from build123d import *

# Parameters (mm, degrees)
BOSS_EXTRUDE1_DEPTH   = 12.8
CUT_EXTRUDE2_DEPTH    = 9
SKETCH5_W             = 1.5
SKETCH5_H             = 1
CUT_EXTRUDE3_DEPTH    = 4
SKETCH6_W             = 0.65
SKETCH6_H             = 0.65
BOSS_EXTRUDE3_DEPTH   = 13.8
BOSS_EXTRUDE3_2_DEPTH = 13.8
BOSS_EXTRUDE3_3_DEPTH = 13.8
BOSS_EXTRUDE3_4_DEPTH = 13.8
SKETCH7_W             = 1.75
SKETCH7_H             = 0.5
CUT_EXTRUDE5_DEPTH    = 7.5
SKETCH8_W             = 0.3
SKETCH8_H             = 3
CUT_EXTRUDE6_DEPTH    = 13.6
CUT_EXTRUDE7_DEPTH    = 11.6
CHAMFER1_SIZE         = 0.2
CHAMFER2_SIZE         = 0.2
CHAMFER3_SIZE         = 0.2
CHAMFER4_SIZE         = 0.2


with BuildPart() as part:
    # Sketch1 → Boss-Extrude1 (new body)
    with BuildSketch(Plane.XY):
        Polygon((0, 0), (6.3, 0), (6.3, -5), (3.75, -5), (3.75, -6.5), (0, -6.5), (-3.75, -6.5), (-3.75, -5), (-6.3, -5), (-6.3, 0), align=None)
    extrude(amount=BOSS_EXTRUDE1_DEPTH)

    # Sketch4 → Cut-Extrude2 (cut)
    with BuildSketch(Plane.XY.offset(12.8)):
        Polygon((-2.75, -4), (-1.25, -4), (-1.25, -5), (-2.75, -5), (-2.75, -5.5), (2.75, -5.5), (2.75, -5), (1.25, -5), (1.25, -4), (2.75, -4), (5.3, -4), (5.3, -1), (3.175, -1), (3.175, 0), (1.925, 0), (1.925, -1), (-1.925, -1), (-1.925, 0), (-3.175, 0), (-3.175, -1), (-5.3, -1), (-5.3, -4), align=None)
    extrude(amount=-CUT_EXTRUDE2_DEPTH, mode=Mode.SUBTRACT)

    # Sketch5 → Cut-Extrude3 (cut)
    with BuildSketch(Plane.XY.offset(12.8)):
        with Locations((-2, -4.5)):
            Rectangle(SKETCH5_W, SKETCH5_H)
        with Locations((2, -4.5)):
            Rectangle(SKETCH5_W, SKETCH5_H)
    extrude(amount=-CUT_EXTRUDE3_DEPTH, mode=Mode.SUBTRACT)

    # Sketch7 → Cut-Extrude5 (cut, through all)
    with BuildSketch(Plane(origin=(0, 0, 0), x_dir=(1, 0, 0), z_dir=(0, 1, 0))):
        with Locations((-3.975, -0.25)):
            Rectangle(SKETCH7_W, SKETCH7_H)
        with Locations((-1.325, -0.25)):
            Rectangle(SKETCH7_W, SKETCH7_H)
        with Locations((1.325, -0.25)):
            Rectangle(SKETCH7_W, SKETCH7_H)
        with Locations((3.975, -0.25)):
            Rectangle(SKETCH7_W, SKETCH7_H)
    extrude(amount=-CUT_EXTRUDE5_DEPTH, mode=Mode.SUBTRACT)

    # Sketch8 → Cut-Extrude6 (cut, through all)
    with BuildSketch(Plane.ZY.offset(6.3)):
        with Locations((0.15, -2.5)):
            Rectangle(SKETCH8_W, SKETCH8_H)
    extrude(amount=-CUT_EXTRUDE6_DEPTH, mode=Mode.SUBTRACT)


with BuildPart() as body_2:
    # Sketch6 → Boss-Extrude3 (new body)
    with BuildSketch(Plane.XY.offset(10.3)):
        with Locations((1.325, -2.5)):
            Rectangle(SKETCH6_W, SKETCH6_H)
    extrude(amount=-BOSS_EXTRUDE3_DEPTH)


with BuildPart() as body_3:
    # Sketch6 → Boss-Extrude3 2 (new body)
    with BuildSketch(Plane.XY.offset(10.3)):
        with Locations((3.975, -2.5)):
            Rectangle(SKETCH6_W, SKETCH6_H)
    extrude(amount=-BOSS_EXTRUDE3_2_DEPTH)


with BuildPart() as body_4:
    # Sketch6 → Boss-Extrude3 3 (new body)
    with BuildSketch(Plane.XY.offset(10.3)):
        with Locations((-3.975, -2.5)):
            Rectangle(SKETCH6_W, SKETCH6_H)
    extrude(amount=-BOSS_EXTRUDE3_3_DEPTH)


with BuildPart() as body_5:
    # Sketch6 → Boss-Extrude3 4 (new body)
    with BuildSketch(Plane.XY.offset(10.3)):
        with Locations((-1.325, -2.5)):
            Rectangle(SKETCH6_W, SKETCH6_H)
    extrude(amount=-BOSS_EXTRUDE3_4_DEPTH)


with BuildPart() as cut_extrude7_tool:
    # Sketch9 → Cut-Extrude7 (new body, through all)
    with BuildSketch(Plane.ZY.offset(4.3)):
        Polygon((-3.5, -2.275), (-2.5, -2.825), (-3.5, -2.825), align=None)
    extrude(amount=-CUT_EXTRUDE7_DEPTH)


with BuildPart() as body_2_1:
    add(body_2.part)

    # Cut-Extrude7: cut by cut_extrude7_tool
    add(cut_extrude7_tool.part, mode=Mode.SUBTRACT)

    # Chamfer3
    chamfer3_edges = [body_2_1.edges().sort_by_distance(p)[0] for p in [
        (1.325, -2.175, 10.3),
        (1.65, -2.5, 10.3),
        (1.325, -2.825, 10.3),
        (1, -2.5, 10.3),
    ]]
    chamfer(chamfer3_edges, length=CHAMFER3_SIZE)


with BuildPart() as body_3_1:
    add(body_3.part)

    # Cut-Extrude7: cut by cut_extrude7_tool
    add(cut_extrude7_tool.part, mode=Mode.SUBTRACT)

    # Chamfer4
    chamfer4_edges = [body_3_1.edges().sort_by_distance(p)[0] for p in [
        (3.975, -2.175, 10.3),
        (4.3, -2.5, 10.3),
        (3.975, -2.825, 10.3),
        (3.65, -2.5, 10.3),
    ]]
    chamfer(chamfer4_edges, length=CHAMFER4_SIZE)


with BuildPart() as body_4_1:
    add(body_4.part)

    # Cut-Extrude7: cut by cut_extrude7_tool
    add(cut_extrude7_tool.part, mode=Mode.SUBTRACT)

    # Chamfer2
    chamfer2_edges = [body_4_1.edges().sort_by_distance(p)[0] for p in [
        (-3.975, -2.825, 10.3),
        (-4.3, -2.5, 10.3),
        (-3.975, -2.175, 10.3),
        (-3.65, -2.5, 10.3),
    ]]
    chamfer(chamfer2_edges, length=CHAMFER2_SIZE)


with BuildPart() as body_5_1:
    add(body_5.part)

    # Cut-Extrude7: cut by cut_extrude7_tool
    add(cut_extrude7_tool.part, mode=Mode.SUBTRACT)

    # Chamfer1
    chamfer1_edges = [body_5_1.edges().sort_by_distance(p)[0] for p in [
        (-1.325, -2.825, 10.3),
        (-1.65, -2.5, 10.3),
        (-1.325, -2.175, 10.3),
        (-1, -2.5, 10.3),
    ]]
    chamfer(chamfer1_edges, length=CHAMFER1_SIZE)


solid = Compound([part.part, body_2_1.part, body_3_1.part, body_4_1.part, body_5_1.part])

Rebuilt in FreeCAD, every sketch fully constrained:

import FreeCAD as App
import Part
import Sketcher
Q = App.Units.Quantity


def edges_at(feature, points):
    """Names of the edges that pass closest to the given points."""
    edges = feature.Shape.Edges
    near = lambda p: min(range(len(edges)), key=lambda i: edges[i].distToShape(Part.Vertex(*p))[0])
    return sorted({f"Edge{near(p) + 1}" for p in points})


def add_polygon(sketch, points):
    """Adds a closed chain of lines whose ends are joined by coincident constraints."""
    first, n = sketch.GeometryCount, len(points)
    for a, b in zip(points, points[1:] + points[:1]):
        sketch.addGeometry(Part.LineSegment(App.Vector(*a, 0), App.Vector(*b, 0)), False)
    for i in range(n):
        sketch.addConstraint(Sketcher.Constraint("Coincident", first + i, 2, first + (i + 1) % n, 1))

doc = App.newDocument("Part")
params = doc.addObject("Spreadsheet::Sheet", "Params")
for row, (alias, value) in enumerate([
    ("sketch1_height", "5 mm"),
    ("sketch1_width", "12.6 mm"),
    ("sketch1_width2", "7.5 mm"),
    ("sketch1_height2", "1.5 mm"),
    ("pad1_length", "12.8 mm"),
    ("sketch2_height", "1 mm"),
    ("sketch2_height2", "3 mm"),
    ("sketch2_width", "1.5 mm"),
    ("sketch2_width2", "5.5 mm"),
    ("sketch2_height3", "0.5 mm"),
    ("pocket1_length", "9 mm"),
    ("sketch3_height", "1 mm"),
    ("sketch3_width", "1.5 mm"),
    ("pocket2_length", "4 mm"),
    ("sketch4_height", "0.5 mm"),
    ("sketch4_width", "1.75 mm"),
    ("sketch5_width", "3 mm"),
    ("sketch5_height", "0.3 mm"),
    ("sketch6_width", "0.65 mm"),
    ("pad2_length", "13.8 mm"),
    ("sketch7_width", "0.65 mm"),
    ("pad3_length", "13.8 mm"),
    ("sketch8_width", "0.65 mm"),
    ("pad4_length", "13.8 mm"),
    ("sketch9_width", "0.65 mm"),
    ("pad5_length", "13.8 mm"),
    ("sketch10_height", "1 mm"),
    ("sketch10_width", "0.55 mm"),
    ("pad6_length", "11.6 mm"),
    ("chamfer_size", "0.2 mm"),
    ("chamfer2_size", "0.2 mm"),
    ("chamfer3_size", "0.2 mm"),
    ("chamfer4_size", "0.2 mm"),
], start=1):
    params.set(f"A{row}", alias)
    params.set(f"B{row}", "=" + value)
    params.setAlias(f"B{row}", alias)

body = doc.addObject("PartDesign::Body", "Body")

# Sketch on XY plane
sketch1 = body.newObject("Sketcher::SketchObject", "Sketch")
sketch1.AttachmentSupport = (doc.getObject("XY_Plane"), [""])
sketch1.MapMode = "FlatFace"
add_polygon(sketch1, [(6.3, 0), (-6.3, 0), (-6.3, -5), (-3.8, -5), (-3.8, -6.5), (3.8, -6.5), (3.8, -5), (6.3, -5)])  # lines 0-7
sketch1.addConstraint(Sketcher.Constraint("Horizontal", 0))
sketch1.addConstraint(Sketcher.Constraint("Vertical", 1))
sketch1.addConstraint(Sketcher.Constraint("Horizontal", 2))
sketch1.addConstraint(Sketcher.Constraint("Vertical", 3))
sketch1.addConstraint(Sketcher.Constraint("Horizontal", 4))
sketch1.addConstraint(Sketcher.Constraint("Vertical", 5))
sketch1.addConstraint(Sketcher.Constraint("Horizontal", 6))
sketch1.addConstraint(Sketcher.Constraint("Vertical", 7))
sketch1.addConstraint(Sketcher.Constraint("Symmetric", 0, 2, 7, 2, -1, 1))
sketch1.addConstraint(Sketcher.Constraint("Symmetric", 2, 2, 5, 2, -2))
sketch1.addConstraint(Sketcher.Constraint("DistanceY", 1, 2, 1, 1, Q("5 mm")))
sketch1.addConstraint(Sketcher.Constraint("DistanceX", 0, 2, 0, 1, Q("12.6 mm")))
sketch1.addConstraint(Sketcher.Constraint("DistanceX", 4, 1, 4, 2, Q("7.5 mm")))
sketch1.addConstraint(Sketcher.Constraint("DistanceY", 3, 2, 3, 1, Q("1.5 mm")))
sketch1.setExpression("Constraints[18]", "Params.sketch1_height")
sketch1.setExpression("Constraints[19]", "Params.sketch1_width")
sketch1.setExpression("Constraints[20]", "Params.sketch1_width2")
sketch1.setExpression("Constraints[21]", "Params.sketch1_height2")
pad1 = body.newObject("PartDesign::Pad", "Pad")
pad1.Profile = sketch1
pad1.setExpression("Length", "Params.pad1_length")

# Sketch on XY plane
sketch2 = body.newObject("Sketcher::SketchObject", "Sketch001")
sketch2.AttachmentSupport = (doc.getObject("XY_Plane"), [""])
sketch2.MapMode = "FlatFace"
sketch2.AttachmentOffset = App.Placement(App.Vector(0, 0, 12.8), App.Rotation())
add_polygon(sketch2, [(-1.2, -4), (-1.2, -5), (-2.8, -5), (-2.8, -5.5), (2.8, -5.5), (2.8, -5), (1.2, -5), (1.2, -4), (5.3, -4), (5.3, -1), (3.2, -1), (3.2, 0), (1.9, 0), (1.9, -1), (-1.9, -1), (-1.9, 0), (-3.2, 0), (-3.2, -1), (-5.3, -1), (-5.3, -4)])  # lines 0-19
sketch2.addConstraint(Sketcher.Constraint("Vertical", 0))
sketch2.addConstraint(Sketcher.Constraint("Horizontal", 1))
sketch2.addConstraint(Sketcher.Constraint("Vertical", 2))
sketch2.addConstraint(Sketcher.Constraint("Horizontal", 3))
sketch2.addConstraint(Sketcher.Constraint("Vertical", 4))
sketch2.addConstraint(Sketcher.Constraint("Horizontal", 5))
sketch2.addConstraint(Sketcher.Constraint("Vertical", 6))
sketch2.addConstraint(Sketcher.Constraint("Horizontal", 7))
sketch2.addConstraint(Sketcher.Constraint("Vertical", 8))
sketch2.addConstraint(Sketcher.Constraint("Horizontal", 9))
sketch2.addConstraint(Sketcher.Constraint("Vertical", 10))
sketch2.addConstraint(Sketcher.Constraint("Horizontal", 11))
sketch2.addConstraint(Sketcher.Constraint("Vertical", 12))
sketch2.addConstraint(Sketcher.Constraint("Horizontal", 13))
sketch2.addConstraint(Sketcher.Constraint("Vertical", 14))
sketch2.addConstraint(Sketcher.Constraint("Horizontal", 15))
sketch2.addConstraint(Sketcher.Constraint("Vertical", 16))
sketch2.addConstraint(Sketcher.Constraint("Horizontal", 17))
sketch2.addConstraint(Sketcher.Constraint("Vertical", 18))
sketch2.addConstraint(Sketcher.Constraint("Horizontal", 19))
sketch2.addConstraint(Sketcher.Constraint("Symmetric", 11, 2, 14, 2, -1, 1))
sketch2.addConstraint(Sketcher.Constraint("Symmetric", 1, 2, 4, 2, -2))
sketch2.addConstraint(Sketcher.Constraint("Symmetric", 10, 2, 15, 2, -2))
sketch2.addConstraint(Sketcher.Constraint("Symmetric", 8, 2, 17, 2, -2))
sketch2.addConstraint(Sketcher.Constraint("Symmetric", 6, 2, 19, 2, -2))
sketch2.addConstraint(Sketcher.Constraint("Horizontal", 9, 2, 12, 2))
sketch2.addConstraint(Sketcher.Constraint("Equal", 6, 10))
sketch2.addConstraint(Sketcher.Constraint("DistanceY", 0, 2, 0, 1, Q("1 mm")))
sketch2.addConstraint(Sketcher.Constraint("DistanceY", 8, 1, 8, 2, Q("3 mm")))
sketch2.addConstraint(Sketcher.Constraint("DistanceX", 1, 2, 1, 1, Q("1.5 mm")))
sketch2.addConstraint(Sketcher.Constraint("DistanceX", 3, 1, 3, 2, Q("5.5 mm")))
sketch2.addConstraint(Sketcher.Constraint("DistanceY", 2, 2, 2, 1, Q("0.5 mm")))
sketch2.addConstraint(Sketcher.Constraint("DistanceX", 7, 1, 7, 2, Q("4.05 mm")))
sketch2.addConstraint(Sketcher.Constraint("DistanceX", 11, 2, 11, 1, Q("1.25 mm")))
sketch2.addConstraint(Sketcher.Constraint("DistanceX", 13, 2, 13, 1, Q("3.85 mm")))
sketch2.setExpression("Constraints[47]", "Params.sketch2_height")
sketch2.setExpression("Constraints[48]", "Params.sketch2_height2")
sketch2.setExpression("Constraints[49]", "Params.sketch2_width")
sketch2.setExpression("Constraints[50]", "Params.sketch2_width2")
sketch2.setExpression("Constraints[51]", "Params.sketch2_height3")
pocket1 = body.newObject("PartDesign::Pocket", "Pocket")
pocket1.Profile = sketch2
pocket1.setExpression("Length", "Params.pocket1_length")

# Sketch on XY plane
sketch3 = body.newObject("Sketcher::SketchObject", "Sketch002")
sketch3.AttachmentSupport = (doc.getObject("XY_Plane"), [""])
sketch3.MapMode = "FlatFace"
sketch3.AttachmentOffset = App.Placement(App.Vector(0, 0, 12.8), App.Rotation())
add_polygon(sketch3, [(-2.8, -4), (-2.8, -5), (-1.2, -5), (-1.2, -4)])  # lines 0-3
add_polygon(sketch3, [(1.2, -4), (1.2, -5), (2.8, -5), (2.8, -4)])  # lines 4-7
sketch3.addConstraint(Sketcher.Constraint("Vertical", 0))
sketch3.addConstraint(Sketcher.Constraint("Horizontal", 1))
sketch3.addConstraint(Sketcher.Constraint("Vertical", 2))
sketch3.addConstraint(Sketcher.Constraint("Horizontal", 3))
sketch3.addConstraint(Sketcher.Constraint("Vertical", 4))
sketch3.addConstraint(Sketcher.Constraint("Horizontal", 5))
sketch3.addConstraint(Sketcher.Constraint("Vertical", 6))
sketch3.addConstraint(Sketcher.Constraint("Horizontal", 7))
sketch3.addConstraint(Sketcher.Constraint("Symmetric", 1, 2, 4, 2, -2))
sketch3.addConstraint(Sketcher.Constraint("Symmetric", 3, 2, 6, 2, -2))
sketch3.addConstraint(Sketcher.Constraint("DistanceY", 0, 2, 0, 1, Q("1 mm")))
sketch3.addConstraint(Sketcher.Constraint("DistanceX", 1, 1, 1, 2, Q("1.5 mm")))
sketch3.addConstraint(Sketcher.Constraint("DistanceY", 0, 2, -1, 1, Q("5 mm")))
sketch3.addConstraint(Sketcher.Constraint("DistanceX", 0, 2, 4, 2, Q("4 mm")))
sketch3.setExpression("Constraints[18]", "Params.sketch3_height")
sketch3.setExpression("Constraints[19]", "Params.sketch3_width")
pocket2 = body.newObject("PartDesign::Pocket", "Pocket001")
pocket2.Profile = sketch3
pocket2.setExpression("Length", "Params.pocket2_length")

# Sketch on XZ plane
sketch4 = body.newObject("Sketcher::SketchObject", "Sketch003")
sketch4.AttachmentSupport = (doc.getObject("XZ_Plane"), [""])
sketch4.MapMode = "FlatFace"
add_polygon(sketch4, [(-4.8, 0), (-4.8, 0.5), (-3.1, 0.5), (-3.1, 0)])  # lines 0-3
add_polygon(sketch4, [(-2.2, 0), (-2.2, 0.5), (-0.5, 0.5), (-0.5, 0)])  # lines 4-7
add_polygon(sketch4, [(0.5, 0), (0.5, 0.5), (2.2, 0.5), (2.2, 0)])  # lines 8-11
add_polygon(sketch4, [(3.1, 0), (3.1, 0.5), (4.8, 0.5), (4.8, 0)])  # lines 12-15
sketch4.addConstraint(Sketcher.Constraint("Vertical", 0))
sketch4.addConstraint(Sketcher.Constraint("Horizontal", 1))
sketch4.addConstraint(Sketcher.Constraint("Vertical", 2))
sketch4.addConstraint(Sketcher.Constraint("Horizontal", 3))
sketch4.addConstraint(Sketcher.Constraint("Vertical", 4))
sketch4.addConstraint(Sketcher.Constraint("Horizontal", 5))
sketch4.addConstraint(Sketcher.Constraint("Vertical", 6))
sketch4.addConstraint(Sketcher.Constraint("Horizontal", 7))
sketch4.addConstraint(Sketcher.Constraint("Vertical", 8))
sketch4.addConstraint(Sketcher.Constraint("Horizontal", 9))
sketch4.addConstraint(Sketcher.Constraint("Vertical", 10))
sketch4.addConstraint(Sketcher.Constraint("Horizontal", 11))
sketch4.addConstraint(Sketcher.Constraint("Vertical", 12))
sketch4.addConstraint(Sketcher.Constraint("Horizontal", 13))
sketch4.addConstraint(Sketcher.Constraint("Vertical", 14))
sketch4.addConstraint(Sketcher.Constraint("Horizontal", 15))
sketch4.addConstraint(Sketcher.Constraint("Symmetric", 7, 2, 10, 2, -1, 1))
sketch4.addConstraint(Sketcher.Constraint("Symmetric", 3, 2, 14, 2, -1, 1))
sketch4.addConstraint(Sketcher.Constraint("Symmetric", 5, 2, 8, 2, -2))
sketch4.addConstraint(Sketcher.Constraint("Symmetric", 1, 2, 12, 2, -2))
sketch4.addConstraint(Sketcher.Constraint("PointOnObject", 2, 2, -1))
sketch4.addConstraint(Sketcher.Constraint("PointOnObject", 6, 2, -1))
sketch4.addConstraint(Sketcher.Constraint("Horizontal", 1, 2, 4, 2))
sketch4.addConstraint(Sketcher.Constraint("Equal", 3, 5))
sketch4.addConstraint(Sketcher.Constraint("DistanceY", 0, 1, 0, 2, Q("0.5 mm")))
sketch4.addConstraint(Sketcher.Constraint("DistanceX", 1, 1, 1, 2, Q("1.75 mm")))
sketch4.addConstraint(Sketcher.Constraint("DistanceX", 1, 2, -1, 1, Q("3.1 mm")))
sketch4.addConstraint(Sketcher.Constraint("DistanceX", 4, 2, -1, 1, Q("2.2 mm")))
sketch4.setExpression("Constraints[40]", "Params.sketch4_height")
sketch4.setExpression("Constraints[41]", "Params.sketch4_width")
pocket3 = body.newObject("PartDesign::Pocket", "Pocket002")
pocket3.Profile = sketch4
pocket3.Type = "ThroughAll"
pocket3.Reversed = True

# Sketch on YZ plane
sketch5 = body.newObject("Sketcher::SketchObject", "Sketch004")
sketch5.AttachmentSupport = (doc.getObject("YZ_Plane"), [""])
sketch5.MapMode = "FlatFace"
sketch5.AttachmentOffset = App.Placement(App.Vector(0, 0, -6.3), App.Rotation())
add_polygon(sketch5, [(-1, 0), (-4, 0), (-4, 0.3), (-1, 0.3)])  # lines 0-3
sketch5.addConstraint(Sketcher.Constraint("Horizontal", 0))
sketch5.addConstraint(Sketcher.Constraint("Vertical", 1))
sketch5.addConstraint(Sketcher.Constraint("Horizontal", 2))
sketch5.addConstraint(Sketcher.Constraint("Vertical", 3))
sketch5.addConstraint(Sketcher.Constraint("PointOnObject", 0, 2, -1))
sketch5.addConstraint(Sketcher.Constraint("DistanceX", 0, 2, 0, 1, Q("3 mm")))
sketch5.addConstraint(Sketcher.Constraint("DistanceY", 1, 1, 1, 2, Q("0.3 mm")))
sketch5.addConstraint(Sketcher.Constraint("DistanceX", 0, 2, -1, 1, Q("4 mm")))
sketch5.setExpression("Constraints[9]", "Params.sketch5_width")
sketch5.setExpression("Constraints[10]", "Params.sketch5_height")
pocket4 = body.newObject("PartDesign::Pocket", "Pocket003")
pocket4.Profile = sketch5
pocket4.Type = "ThroughAll"
pocket4.Reversed = True
body2 = doc.addObject("PartDesign::Body", "Body001")

# Sketch on XY plane
sketch6 = body2.newObject("Sketcher::SketchObject", "Sketch005")
sketch6.AttachmentSupport = (doc.getObject("XY_Plane001"), [""])
sketch6.MapMode = "FlatFace"
sketch6.AttachmentOffset = App.Placement(App.Vector(0, 0, 10.3), App.Rotation())
add_polygon(sketch6, [(1, -2.2), (1, -2.8), (1.6, -2.8), (1.6, -2.2)])  # lines 0-3
sketch6.addConstraint(Sketcher.Constraint("Vertical", 0))
sketch6.addConstraint(Sketcher.Constraint("Horizontal", 1))
sketch6.addConstraint(Sketcher.Constraint("Vertical", 2))
sketch6.addConstraint(Sketcher.Constraint("Horizontal", 3))
sketch6.addConstraint(Sketcher.Constraint("Equal", 3, 0))
sketch6.addConstraint(Sketcher.Constraint("DistanceX", -1, 1, 0, 2, Q("1 mm")))
sketch6.addConstraint(Sketcher.Constraint("DistanceX", 1, 1, 1, 2, Q("0.65 mm")))
sketch6.addConstraint(Sketcher.Constraint("DistanceY", 0, 2, -1, 1, Q("2.825 mm")))
sketch6.setExpression("Constraints[10]", "Params.sketch6_width")
pad2 = body2.newObject("PartDesign::Pad", "Pad001")
pad2.Profile = sketch6
pad2.setExpression("Length", "Params.pad2_length")
pad2.Reversed = True
body3 = doc.addObject("PartDesign::Body", "Body002")

# Sketch on XY plane
sketch7 = body3.newObject("Sketcher::SketchObject", "Sketch006")
sketch7.AttachmentSupport = (doc.getObject("XY_Plane002"), [""])
sketch7.MapMode = "FlatFace"
sketch7.AttachmentOffset = App.Placement(App.Vector(0, 0, 10.3), App.Rotation())
add_polygon(sketch7, [(3.6, -2.2), (3.6, -2.8), (4.3, -2.8), (4.3, -2.2)])  # lines 0-3
sketch7.addConstraint(Sketcher.Constraint("Vertical", 0))
sketch7.addConstraint(Sketcher.Constraint("Horizontal", 1))
sketch7.addConstraint(Sketcher.Constraint("Vertical", 2))
sketch7.addConstraint(Sketcher.Constraint("Horizontal", 3))
sketch7.addConstraint(Sketcher.Constraint("Equal", 3, 0))
sketch7.addConstraint(Sketcher.Constraint("DistanceX", 1, 1, 1, 2, Q("0.65 mm")))
sketch7.addConstraint(Sketcher.Constraint("DistanceX", -1, 1, 1, 2, Q("4.3 mm")))
sketch7.addConstraint(Sketcher.Constraint("DistanceY", 0, 2, -1, 1, Q("2.825 mm")))
sketch7.setExpression("Constraints[9]", "Params.sketch7_width")
pad3 = body3.newObject("PartDesign::Pad", "Pad002")
pad3.Profile = sketch7
pad3.setExpression("Length", "Params.pad3_length")
pad3.Reversed = True
body4 = doc.addObject("PartDesign::Body", "Body003")

# Sketch on XY plane
sketch8 = body4.newObject("Sketcher::SketchObject", "Sketch007")
sketch8.AttachmentSupport = (doc.getObject("XY_Plane003"), [""])
sketch8.MapMode = "FlatFace"
sketch8.AttachmentOffset = App.Placement(App.Vector(0, 0, 10.3), App.Rotation())
add_polygon(sketch8, [(-4.3, -2.2), (-4.3, -2.8), (-3.6, -2.8), (-3.6, -2.2)])  # lines 0-3
sketch8.addConstraint(Sketcher.Constraint("Vertical", 0))
sketch8.addConstraint(Sketcher.Constraint("Horizontal", 1))
sketch8.addConstraint(Sketcher.Constraint("Vertical", 2))
sketch8.addConstraint(Sketcher.Constraint("Horizontal", 3))
sketch8.addConstraint(Sketcher.Constraint("Equal", 3, 0))
sketch8.addConstraint(Sketcher.Constraint("DistanceX", 1, 1, 1, 2, Q("0.65 mm")))
sketch8.addConstraint(Sketcher.Constraint("DistanceX", 0, 2, -1, 1, Q("4.3 mm")))
sketch8.addConstraint(Sketcher.Constraint("DistanceY", 0, 2, -1, 1, Q("2.825 mm")))
sketch8.setExpression("Constraints[9]", "Params.sketch8_width")
pad4 = body4.newObject("PartDesign::Pad", "Pad003")
pad4.Profile = sketch8
pad4.setExpression("Length", "Params.pad4_length")
pad4.Reversed = True
body5 = doc.addObject("PartDesign::Body", "Body004")

# Sketch on XY plane
sketch9 = body5.newObject("Sketcher::SketchObject", "Sketch008")
sketch9.AttachmentSupport = (doc.getObject("XY_Plane004"), [""])
sketch9.MapMode = "FlatFace"
sketch9.AttachmentOffset = App.Placement(App.Vector(0, 0, 10.3), App.Rotation())
add_polygon(sketch9, [(-1.6, -2.2), (-1.6, -2.8), (-1, -2.8), (-1, -2.2)])  # lines 0-3
sketch9.addConstraint(Sketcher.Constraint("Vertical", 0))
sketch9.addConstraint(Sketcher.Constraint("Horizontal", 1))
sketch9.addConstraint(Sketcher.Constraint("Vertical", 2))
sketch9.addConstraint(Sketcher.Constraint("Horizontal", 3))
sketch9.addConstraint(Sketcher.Constraint("Equal", 3, 0))
sketch9.addConstraint(Sketcher.Constraint("DistanceX", 1, 2, -1, 1, Q("1 mm")))
sketch9.addConstraint(Sketcher.Constraint("DistanceX", 1, 1, 1, 2, Q("0.65 mm")))
sketch9.addConstraint(Sketcher.Constraint("DistanceY", 0, 2, -1, 1, Q("2.825 mm")))
sketch9.setExpression("Constraints[10]", "Params.sketch9_width")
pad5 = body5.newObject("PartDesign::Pad", "Pad004")
pad5.Profile = sketch9
pad5.setExpression("Length", "Params.pad5_length")
pad5.Reversed = True
body6 = doc.addObject("PartDesign::Body", "Body005")

# Sketch on YZ plane
sketch10 = body6.newObject("Sketcher::SketchObject", "Sketch009")
sketch10.AttachmentSupport = (doc.getObject("YZ_Plane005"), [""])
sketch10.MapMode = "FlatFace"
sketch10.AttachmentOffset = App.Placement(App.Vector(0, 0, -4.3), App.Rotation())
add_polygon(sketch10, [(-2.8, -2.5), (-2.3, -3.5), (-2.8, -3.5)])  # lines 0-2
sketch10.addConstraint(Sketcher.Constraint("Horizontal", 1))
sketch10.addConstraint(Sketcher.Constraint("Vertical", 2))
sketch10.addConstraint(Sketcher.Constraint("DistanceY", 2, 1, 2, 2, Q("1 mm")))
sketch10.addConstraint(Sketcher.Constraint("DistanceX", 1, 2, 1, 1, Q("0.55 mm")))
sketch10.addConstraint(Sketcher.Constraint("DistanceY", 0, 2, -1, 1, Q("3.5 mm")))
sketch10.addConstraint(Sketcher.Constraint("DistanceX", 0, 2, -1, 1, Q("2.275 mm")))
sketch10.setExpression("Constraints[5]", "Params.sketch10_height")
sketch10.setExpression("Constraints[6]", "Params.sketch10_width")
pad6 = body6.newObject("PartDesign::Pad", "Pad005")
pad6.Profile = sketch10
pad6.setExpression("Length", "Params.pad6_length")
doc.recompute()

body7 = doc.addObject("PartDesign::Body", "Body006")
body7.BaseFeature = body6
boolean = body2.newObject("PartDesign::Boolean", "Boolean")
boolean.Type = "Cut"
boolean.addObjects([body7])
doc.recompute()

chamfer = body2.newObject("PartDesign::Chamfer", "Chamfer")
chamfer.Base = (boolean, edges_at(boolean, [
    (1.325, -2.175, 10.3),
    (1.65, -2.5, 10.3),
    (1.325, -2.825, 10.3),
    (1, -2.5, 10.3),
]))
chamfer.setExpression("Size", "Params.chamfer_size")
doc.recompute()

body8 = doc.addObject("PartDesign::Body", "Body007")
body8.BaseFeature = body6
boolean2 = body3.newObject("PartDesign::Boolean", "Boolean001")
boolean2.Type = "Cut"
boolean2.addObjects([body8])
doc.recompute()

chamfer2 = body3.newObject("PartDesign::Chamfer", "Chamfer001")
chamfer2.Base = (boolean2, edges_at(boolean2, [
    (3.975, -2.175, 10.3),
    (4.3, -2.5, 10.3),
    (3.975, -2.825, 10.3),
    (3.65, -2.5, 10.3),
]))
chamfer2.setExpression("Size", "Params.chamfer2_size")
doc.recompute()

body9 = doc.addObject("PartDesign::Body", "Body008")
body9.BaseFeature = body6
boolean3 = body4.newObject("PartDesign::Boolean", "Boolean002")
boolean3.Type = "Cut"
boolean3.addObjects([body9])
doc.recompute()

chamfer3 = body4.newObject("PartDesign::Chamfer", "Chamfer002")
chamfer3.Base = (boolean3, edges_at(boolean3, [
    (-3.975, -2.825, 10.3),
    (-4.3, -2.5, 10.3),
    (-3.975, -2.175, 10.3),
    (-3.65, -2.5, 10.3),
]))
chamfer3.setExpression("Size", "Params.chamfer3_size")
doc.recompute()

boolean4 = body5.newObject("PartDesign::Boolean", "Boolean003")
boolean4.Type = "Cut"
boolean4.addObjects([body6])
doc.recompute()

chamfer4 = body5.newObject("PartDesign::Chamfer", "Chamfer003")
chamfer4.Base = (boolean4, edges_at(boolean4, [
    (-1.325, -2.825, 10.3),
    (-1.65, -2.5, 10.3),
    (-1.325, -2.175, 10.3),
    (-1, -2.5, 10.3),
]))
chamfer4.setExpression("Size", "Params.chamfer4_size")

doc.recompute()
